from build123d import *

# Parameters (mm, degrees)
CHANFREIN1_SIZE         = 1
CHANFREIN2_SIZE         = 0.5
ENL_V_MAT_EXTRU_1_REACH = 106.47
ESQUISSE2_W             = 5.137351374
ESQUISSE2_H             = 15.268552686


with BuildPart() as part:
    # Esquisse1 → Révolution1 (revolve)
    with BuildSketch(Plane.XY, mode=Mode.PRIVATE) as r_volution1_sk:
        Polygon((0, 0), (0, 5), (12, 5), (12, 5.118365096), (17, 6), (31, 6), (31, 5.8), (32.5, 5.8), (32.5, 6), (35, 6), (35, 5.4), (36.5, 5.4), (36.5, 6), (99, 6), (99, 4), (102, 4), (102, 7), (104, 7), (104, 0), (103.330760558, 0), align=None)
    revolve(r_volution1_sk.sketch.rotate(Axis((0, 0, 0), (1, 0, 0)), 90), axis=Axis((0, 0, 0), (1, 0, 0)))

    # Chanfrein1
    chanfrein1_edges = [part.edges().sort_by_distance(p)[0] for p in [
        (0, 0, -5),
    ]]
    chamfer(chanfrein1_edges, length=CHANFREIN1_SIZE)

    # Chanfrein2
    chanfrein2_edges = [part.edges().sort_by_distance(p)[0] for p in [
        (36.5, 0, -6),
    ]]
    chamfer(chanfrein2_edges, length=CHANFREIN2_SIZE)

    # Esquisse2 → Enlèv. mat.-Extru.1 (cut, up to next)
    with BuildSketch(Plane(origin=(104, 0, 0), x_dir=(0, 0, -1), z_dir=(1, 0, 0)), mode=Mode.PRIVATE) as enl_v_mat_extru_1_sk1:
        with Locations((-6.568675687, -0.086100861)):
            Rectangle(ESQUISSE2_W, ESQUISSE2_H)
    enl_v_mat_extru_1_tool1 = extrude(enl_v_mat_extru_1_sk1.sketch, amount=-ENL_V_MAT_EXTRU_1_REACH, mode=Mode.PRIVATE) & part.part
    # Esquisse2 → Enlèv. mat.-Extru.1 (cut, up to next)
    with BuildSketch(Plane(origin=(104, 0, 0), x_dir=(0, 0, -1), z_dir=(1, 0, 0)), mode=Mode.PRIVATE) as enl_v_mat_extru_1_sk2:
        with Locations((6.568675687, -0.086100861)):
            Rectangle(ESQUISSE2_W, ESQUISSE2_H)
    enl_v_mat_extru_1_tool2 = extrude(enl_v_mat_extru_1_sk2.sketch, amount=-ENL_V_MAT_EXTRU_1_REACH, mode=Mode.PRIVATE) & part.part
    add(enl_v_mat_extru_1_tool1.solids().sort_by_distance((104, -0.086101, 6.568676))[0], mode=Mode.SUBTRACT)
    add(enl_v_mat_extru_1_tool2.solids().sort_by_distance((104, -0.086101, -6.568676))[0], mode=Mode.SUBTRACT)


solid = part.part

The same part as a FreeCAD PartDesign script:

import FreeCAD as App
import Part
import Sketcher
Q = App.Units.Quantity


def edges_at(feature, points):
    """Names of the edges that pass closest to the given points."""
    edges = feature.Shape.Edges
    near = lambda p: min(range(len(edges)), key=lambda i: edges[i].distToShape(Part.Vertex(*p))[0])
    return sorted({f"Edge{near(p) + 1}" for p in points})


def add_polygon(sketch, points):
    """Adds a closed chain of lines whose ends are joined by coincident constraints."""
    first, n = sketch.GeometryCount, len(points)
    for a, b in zip(points, points[1:] + points[:1]):
        sketch.addGeometry(Part.LineSegment(App.Vector(*a, 0), App.Vector(*b, 0)), False)
    for i in range(n):
        sketch.addConstraint(Sketcher.Constraint("Coincident", first + i, 2, first + (i + 1) % n, 1))

doc = App.newDocument("Part")
body = doc.addObject("PartDesign::Body", "Body")

# Sketch on XY plane
sketch1 = body.newObject("Sketcher::SketchObject", "Sketch")
sketch1.AttachmentSupport = (doc.getObject("XY_Plane"), [""])
sketch1.MapMode = "FlatFace"
add_polygon(sketch1, [(0, 5), (0, 0), (104, 0), (104, 7), (102, 7), (102, 4), (99, 4), (99, 6), (36.5, 6), (36.5, 5.4), (35, 5.4), (35, 6), (32.5, 6), (32.5, 5.8), (31, 5.8), (31, 6), (17, 6), (12, 5.118365), (12, 5)])  # lines 0-18
sketch1.addConstraint(Sketcher.Constraint("Vertical", 0))
sketch1.addConstraint(Sketcher.Constraint("Horizontal", 1))
sketch1.addConstraint(Sketcher.Constraint("Vertical", 2))
sketch1.addConstraint(Sketcher.Constraint("Horizontal", 3))
sketch1.addConstraint(Sketcher.Constraint("Vertical", 4))
sketch1.addConstraint(Sketcher.Constraint("Horizontal", 5))
sketch1.addConstraint(Sketcher.Constraint("Vertical", 6))
sketch1.addConstraint(Sketcher.Constraint("Horizontal", 7))
sketch1.addConstraint(Sketcher.Constraint("Vertical", 8))
sketch1.addConstraint(Sketcher.Constraint("Horizontal", 9))
sketch1.addConstraint(Sketcher.Constraint("Vertical", 10))
sketch1.addConstraint(Sketcher.Constraint("Horizontal", 11))
sketch1.addConstraint(Sketcher.Constraint("Vertical", 12))
sketch1.addConstraint(Sketcher.Constraint("Horizontal", 13))
sketch1.addConstraint(Sketcher.Constraint("Vertical", 14))
sketch1.addConstraint(Sketcher.Constraint("Horizontal", 15))
sketch1.addConstraint(Sketcher.Constraint("Vertical", 17))
sketch1.addConstraint(Sketcher.Constraint("Horizontal", 18))
sketch1.addConstraint(Sketcher.Constraint("Coincident", 0, 2, -1, 1))
sketch1.addConstraint(Sketcher.Constraint("Horizontal", 7, 2, 10, 2))
sketch1.addConstraint(Sketcher.Constraint("Horizontal", 11, 2, 14, 2))
sketch1.addConstraint(Sketcher.Constraint("Equal", 9, 13))
sketch1.addConstraint(Sketcher.Constraint("Equal", 5, 4))
sketch1.addConstraint(Sketcher.Constraint("Equal", 3, 6))
sketch1.addConstraint(Sketcher.Constraint("DistanceX", 1, 1, 1, 2, Q("104 mm")))
sketch1.addConstraint(Sketcher.Constraint("DistanceX", 3, 2, 3, 1, Q("2 mm")))
sketch1.addConstraint(Sketcher.Constraint("DistanceX", 5, 2, 5, 1, Q("3 mm")))
sketch1.addConstraint(Sketcher.Constraint("DistanceX", 15, 2, 15, 1, Q("14 mm")))
sketch1.addConstraint(Sketcher.Constraint("DistanceX", 18, 2, 18, 1, Q("12 mm")))
sketch1.addConstraint(Sketcher.Constraint("DistanceY", 0, 2, 0, 1, Q("5 mm")))
sketch1.addConstraint(Sketcher.Constraint("DistanceY", 2, 1, 2, 2, Q("7 mm")))
sketch1.addConstraint(Sketcher.Constraint("Angle", 16, Q("-170 deg")))
sketch1.addConstraint(Sketcher.Constraint("DistanceX", 7, 2, 7, 1, Q("62.5 mm")))
sketch1.addConstraint(Sketcher.Constraint("DistanceX", 9, 2, 9, 1, Q("1.5 mm")))
sketch1.addConstraint(Sketcher.Constraint("DistanceX", 11, 2, 11, 1, Q("2.5 mm")))
sketch1.addConstraint(Sketcher.Constraint("DistanceY", 8, 2, 8, 1, Q("0.6 mm")))
sketch1.addConstraint(Sketcher.Constraint("DistanceY", 12, 2, 12, 1, Q("0.2 mm")))
revolution = body.newObject("PartDesign::Revolution", "Revolution")
revolution.Profile = sketch1
revolution.ReferenceAxis = (sketch1, ["H_Axis"])
revolution.Angle = 360
doc.recompute()

chamfer = body.newObject("PartDesign::Chamfer", "Chamfer")
chamfer.Base = (revolution, edges_at(revolution, [(0, 0, -5)]))
chamfer.Size = 1
doc.recompute()

chamfer2 = body.newObject("PartDesign::Chamfer", "Chamfer001")
chamfer2.Base = (chamfer, edges_at(chamfer, [(36.5, 0, -6)]))
chamfer2.Size = 0.5

# Sketch on YZ plane
sketch2 = body.newObject("Sketcher::SketchObject", "Sketch001")
sketch2.AttachmentSupport = (doc.getObject("YZ_Plane"), [""])
sketch2.MapMode = "FlatFace"
sketch2.AttachmentOffset = App.Placement(App.Vector(0, 0, 104), App.Rotation())
add_polygon(sketch2, [(7.548175, 9.137351), (-7.720377, 9.137351), (-7.720377, 4), (7.548175, 4)])  # lines 0-3
sketch2.addConstraint(Sketcher.Constraint("Horizontal", 0))
sketch2.addConstraint(Sketcher.Constraint("Vertical", 1))
sketch2.addConstraint(Sketcher.Constraint("Horizontal", 2))
sketch2.addConstraint(Sketcher.Constraint("Vertical", 3))
sketch2.addConstraint(Sketcher.Constraint("DistanceY", -1, 1, 1, 2, Q("4 mm")))
sketch2.addConstraint(Sketcher.Constraint("DistanceY", 1, 2, 1, 1, Q("5.137351 mm")))
sketch2.addConstraint(Sketcher.Constraint("DistanceX", 0, 2, 0, 1, Q("15.268553 mm")))
sketch2.addConstraint(Sketcher.Constraint("DistanceX", 0, 2, -1, 1, Q("7.720377 mm")))
pocket1 = body.newObject("PartDesign::Pocket", "Pocket")
pocket1.Profile = sketch2
pocket1.Type = "UpToFirst"

# Sketch on YZ plane
sketch3 = body.newObject("Sketcher::SketchObject", "Sketch002")
sketch3.AttachmentSupport = (doc.getObject("YZ_Plane"), [""])
sketch3.MapMode = "FlatFace"
sketch3.AttachmentOffset = App.Placement(App.Vector(0, 0, 104), App.Rotation())
add_polygon(sketch3, [(7.548175, -4), (-7.720377, -4), (-7.720377, -9.137351), (7.548175, -9.137351)])  # lines 0-3
sketch3.addConstraint(Sketcher.Constraint("Horizontal", 0))
sketch3.addConstraint(Sketcher.Constraint("Vertical", 1))
sketch3.addConstraint(Sketcher.Constraint("Horizontal", 2))
sketch3.addConstraint(Sketcher.Constraint("Vertical", 3))
sketch3.addConstraint(Sketcher.Constraint("DistanceY", 0, 2, -1, 1, Q("4 mm")))
sketch3.addConstraint(Sketcher.Constraint("DistanceY", 1, 2, 1, 1, Q("5.137351 mm")))
sketch3.addConstraint(Sketcher.Constraint("DistanceX", 0, 2, 0, 1, Q("15.268553 mm")))
sketch3.addConstraint(Sketcher.Constraint("DistanceX", 0, 2, -1, 1, Q("7.720377 mm")))
pocket2 = body.newObject("PartDesign::Pocket", "Pocket001")
pocket2.Profile = sketch3
pocket2.Type = "UpToFirst"

doc.recompute()
